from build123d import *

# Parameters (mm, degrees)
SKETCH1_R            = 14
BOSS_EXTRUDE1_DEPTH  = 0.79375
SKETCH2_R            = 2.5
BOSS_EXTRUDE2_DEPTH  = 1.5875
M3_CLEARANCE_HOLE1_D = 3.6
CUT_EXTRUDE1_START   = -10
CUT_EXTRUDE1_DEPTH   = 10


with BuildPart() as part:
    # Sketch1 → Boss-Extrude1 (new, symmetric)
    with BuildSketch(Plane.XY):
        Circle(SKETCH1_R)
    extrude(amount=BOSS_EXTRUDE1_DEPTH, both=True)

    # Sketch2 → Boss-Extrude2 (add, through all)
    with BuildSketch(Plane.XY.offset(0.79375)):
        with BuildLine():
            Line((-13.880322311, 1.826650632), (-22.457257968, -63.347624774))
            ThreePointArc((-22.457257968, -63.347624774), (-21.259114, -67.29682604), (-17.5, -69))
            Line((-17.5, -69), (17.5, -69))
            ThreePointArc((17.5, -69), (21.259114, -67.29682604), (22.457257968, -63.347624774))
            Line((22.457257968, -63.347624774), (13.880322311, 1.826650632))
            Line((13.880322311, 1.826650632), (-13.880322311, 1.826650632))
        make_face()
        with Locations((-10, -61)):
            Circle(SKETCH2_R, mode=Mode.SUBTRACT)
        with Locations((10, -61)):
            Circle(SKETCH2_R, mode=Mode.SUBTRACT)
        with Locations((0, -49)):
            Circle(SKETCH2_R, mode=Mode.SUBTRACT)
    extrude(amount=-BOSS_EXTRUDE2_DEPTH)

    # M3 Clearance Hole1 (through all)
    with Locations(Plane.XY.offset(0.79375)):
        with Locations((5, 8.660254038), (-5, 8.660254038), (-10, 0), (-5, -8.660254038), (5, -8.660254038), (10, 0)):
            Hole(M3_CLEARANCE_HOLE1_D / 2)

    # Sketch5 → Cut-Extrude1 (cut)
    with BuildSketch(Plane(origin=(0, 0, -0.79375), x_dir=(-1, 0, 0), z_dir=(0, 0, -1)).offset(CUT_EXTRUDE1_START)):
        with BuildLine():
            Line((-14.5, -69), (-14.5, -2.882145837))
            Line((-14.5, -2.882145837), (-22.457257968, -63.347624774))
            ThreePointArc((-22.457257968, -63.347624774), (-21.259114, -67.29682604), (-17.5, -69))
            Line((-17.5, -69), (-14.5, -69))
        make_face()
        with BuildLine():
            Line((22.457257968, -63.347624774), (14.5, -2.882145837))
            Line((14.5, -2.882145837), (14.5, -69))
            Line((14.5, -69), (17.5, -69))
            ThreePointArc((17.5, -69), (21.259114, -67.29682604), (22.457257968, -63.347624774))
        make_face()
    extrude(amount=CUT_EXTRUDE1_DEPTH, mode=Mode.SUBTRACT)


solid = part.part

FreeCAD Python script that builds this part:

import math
import FreeCAD as App
import Part
import Sketcher
from FreeCAD import Vector

doc = App.newDocument("Part")
body = doc.addObject("PartDesign::Body", "Body")

# Sketch on XY plane
sketch1 = doc.addObject("Sketcher::SketchObject", "Sketch")
body.addObject(sketch1)
sketch1.AttachmentSupport = (doc.XY_Plane, [""])
sketch1.MapMode = "FlatFace"
sketch1.addGeometry(Part.Circle(Vector(0, 0, 0), Vector(0, 0, 1), 14), False)
sketch1.addConstraint(Sketcher.Constraint("Coincident", 0, 3, -1, 1))
sketch1.addConstraint(Sketcher.Constraint("Diameter", 0, 28.0))
pad1 = doc.addObject("PartDesign::Pad", "Pad")
body.addObject(pad1)
pad1.Profile = sketch1
pad1.Length = 1.5875
pad1.Midplane = True

# Sketch on XY plane
sketch2 = doc.addObject("Sketcher::SketchObject", "Sketch001")
body.addObject(sketch2)
sketch2.AttachmentSupport = (doc.XY_Plane, [""])
sketch2.MapMode = "FlatFace"
sketch2.AttachmentOffset = App.Placement(Vector(0, 0, 0.79375), App.Rotation())
sketch2.addGeometry(Part.LineSegment(Vector(-13.9, 1.8, 0), Vector(-22.5, -63.3, 0)), False)
sketch2.addGeometry(Part.ArcOfCircle(Part.Circle(Vector(-17.5, -64, 0), Vector(0, 0, 1), 5), math.radians(173), math.radians(270)), False)
sketch2.addGeometry(Part.LineSegment(Vector(-17.5, -69, 0), Vector(17.5, -69, 0)), False)
sketch2.addGeometry(Part.ArcOfCircle(Part.Circle(Vector(17.5, -64, 0), Vector(0, 0, 1), 5), math.radians(-90), math.radians(7)), False)
sketch2.addGeometry(Part.LineSegment(Vector(22.5, -63.3, 0), Vector(13.9, 1.8, 0)), False)
sketch2.addGeometry(Part.LineSegment(Vector(13.9, 1.8, 0), Vector(-13.9, 1.8, 0)), False)
sketch2.addGeometry(Part.Circle(Vector(-10, -61, 0), Vector(0, 0, 1), 2.5), False)
sketch2.addGeometry(Part.Circle(Vector(10, -61, 0), Vector(0, 0, 1), 2.5), False)
sketch2.addGeometry(Part.Circle(Vector(0, -49, 0), Vector(0, 0, 1), 2.5), False)
sketch2.addConstraint(Sketcher.Constraint("Tangent", 0, 2, 1, 1))
sketch2.addConstraint(Sketcher.Constraint("Tangent", 1, 2, 2, 1))
sketch2.addConstraint(Sketcher.Constraint("Tangent", 2, 2, 3, 1))
sketch2.addConstraint(Sketcher.Constraint("Tangent", 3, 2, 4, 1))
sketch2.addConstraint(Sketcher.Constraint("Coincident", 4, 2, 5, 1))
sketch2.addConstraint(Sketcher.Constraint("Coincident", 5, 2, 0, 1))
sketch2.addConstraint(Sketcher.Constraint("Horizontal", 2))
sketch2.addConstraint(Sketcher.Constraint("Horizontal", 5))
sketch2.addConstraint(Sketcher.Constraint("Equal", 1, 3))
sketch2.addConstraint(Sketcher.Constraint("Equal", 6, 7))
sketch2.addConstraint(Sketcher.Constraint("Equal", 7, 8))
sketch2.addConstraint(Sketcher.Constraint("Symmetric", 6, 3, 7, 3, -2))
sketch2.addConstraint(Sketcher.Constraint("Symmetric", 0, 2, 3, 2, -2))
sketch2.addConstraint(Sketcher.Constraint("PointOnObject", 8, 3, -2))
sketch2.addConstraint(Sketcher.Constraint("Diameter", 6, 5.0))
sketch2.addConstraint(Sketcher.Constraint("Radius", 1, 5.0))
sketch2.addConstraint(Sketcher.Constraint("DistanceX", 2, 1, 2, 2, 35.0))
sketch2.addConstraint(Sketcher.Constraint("DistanceY", 1, 3, -1, 1, 64.0))
sketch2.addConstraint(Sketcher.Constraint("DistanceX", 6, 3, -1, 1, 10.0))
sketch2.addConstraint(Sketcher.Constraint("DistanceY", 6, 3, -1, 1, 61.0))
sketch2.addConstraint(Sketcher.Constraint("DistanceY", 8, 3, -1, 1, 49.0))
sketch2.addConstraint(Sketcher.Constraint("DistanceX", 5, 2, 5, 1, 27.760645))
sketch2.addConstraint(Sketcher.Constraint("DistanceY", -1, 1, 4, 2, 1.826651))
pad2 = doc.addObject("PartDesign::Pad", "Pad001")
body.addObject(pad2)
pad2.Profile = sketch2
pad2.Length = 1.5875
pad2.Reversed = True

# Sketch on XY plane
sketch3 = doc.addObject("Sketcher::SketchObject", "Sketch002")
body.addObject(sketch3)
sketch3.AttachmentSupport = (doc.XY_Plane, [""])
sketch3.MapMode = "FlatFace"
sketch3.AttachmentOffset = App.Placement(Vector(0, 0, 0.79375), App.Rotation())
sketch3.addGeometry(Part.Circle(Vector(5, 8.7, 0), Vector(0, 0, 1), 1.8), False)
sketch3.addGeometry(Part.Circle(Vector(-5, 8.7, 0), Vector(0, 0, 1), 1.8), False)
sketch3.addGeometry(Part.Circle(Vector(-10, 0, 0), Vector(0, 0, 1), 1.8), False)
sketch3.addGeometry(Part.Circle(Vector(-5, -8.7, 0), Vector(0, 0, 1), 1.8), False)
sketch3.addGeometry(Part.Circle(Vector(5, -8.7, 0), Vector(0, 0, 1), 1.8), False)
sketch3.addGeometry(Part.Circle(Vector(10, 0, 0), Vector(0, 0, 1), 1.8), False)
sketch3.addConstraint(Sketcher.Constraint("Equal", 0, 1))
sketch3.addConstraint(Sketcher.Constraint("Equal", 1, 2))
sketch3.addConstraint(Sketcher.Constraint("Equal", 2, 3))
sketch3.addConstraint(Sketcher.Constraint("Equal", 3, 4))
sketch3.addConstraint(Sketcher.Constraint("Equal", 4, 5))
sketch3.addConstraint(Sketcher.Constraint("Symmetric", 0, 3, 3, 3, -1, 1))
sketch3.addConstraint(Sketcher.Constraint("Symmetric", 1, 3, 4, 3, -1, 1))
sketch3.addConstraint(Sketcher.Constraint("Symmetric", 2, 3, 5, 3, -1, 1))
sketch3.addConstraint(Sketcher.Constraint("Symmetric", 0, 3, 1, 3, -2))
sketch3.addConstraint(Sketcher.Constraint("PointOnObject", 2, 3, -1))
sketch3.addConstraint(Sketcher.Constraint("Diameter", 0, 3.6))
sketch3.addConstraint(Sketcher.Constraint("DistanceX", -1, 1, 0, 3, 5.0))
sketch3.addConstraint(Sketcher.Constraint("DistanceX", 2, 3, -1, 1, 10.0))
sketch3.addConstraint(Sketcher.Constraint("DistanceY", 3, 3, 1, 3, 17.320508))
doc.recompute()
hole = doc.addObject("PartDesign::Hole", "Hole")
body.addObject(hole)
hole.Profile = sketch3
hole.ThreadType = "None"
hole.Diameter = 3.6
hole.DepthType = "ThroughAll"

# Sketch on XY plane
sketch4 = doc.addObject("Sketcher::SketchObject", "Sketch003")
body.addObject(sketch4)
sketch4.AttachmentSupport = (doc.XY_Plane, [""])
sketch4.MapMode = "FlatFace"
sketch4.AttachmentOffset = App.Placement(Vector(0, 0, 9.20625), App.Rotation())
sketch4.addGeometry(Part.LineSegment(Vector(14.5, -69, 0), Vector(14.5, -2.9, 0)), False)
sketch4.addGeometry(Part.LineSegment(Vector(14.5, -2.9, 0), Vector(22.5, -63.3, 0)), False)
sketch4.addGeometry(Part.ArcOfCircle(Part.Circle(Vector(17.5, -64, 0), Vector(0, 0, 1), 5), math.radians(-90), math.radians(7)), False)
sketch4.addGeometry(Part.LineSegment(Vector(17.5, -69, 0), Vector(14.5, -69, 0)), False)
sketch4.addGeometry(Part.LineSegment(Vector(-22.5, -63.3, 0), Vector(-14.5, -2.9, 0)), False)
sketch4.addGeometry(Part.LineSegment(Vector(-14.5, -2.9, 0), Vector(-14.5, -69, 0)), False)
sketch4.addGeometry(Part.LineSegment(Vector(-14.5, -69, 0), Vector(-17.5, -69, 0)), False)
sketch4.addGeometry(Part.ArcOfCircle(Part.Circle(Vector(-17.5, -64, 0), Vector(0, 0, 1), 5), math.radians(173), math.radians(270)), False)
sketch4.addConstraint(Sketcher.Constraint("Coincident", 0, 2, 1, 1))
sketch4.addConstraint(Sketcher.Constraint("Tangent", 1, 2, 2, 2))
sketch4.addConstraint(Sketcher.Constraint("Tangent", 2, 1, 3, 1))
sketch4.addConstraint(Sketcher.Constraint("Coincident", 3, 2, 0, 1))
sketch4.addConstraint(Sketcher.Constraint("Coincident", 4, 2, 5, 1))
sketch4.addConstraint(Sketcher.Constraint("Coincident", 5, 2, 6, 1))
sketch4.addConstraint(Sketcher.Constraint("Tangent", 6, 2, 7, 2))
sketch4.addConstraint(Sketcher.Constraint("Tangent", 7, 1, 4, 1))
sketch4.addConstraint(Sketcher.Constraint("Vertical", 0))
sketch4.addConstraint(Sketcher.Constraint("Horizontal", 3))
sketch4.addConstraint(Sketcher.Constraint("Vertical", 5))
sketch4.addConstraint(Sketcher.Constraint("Horizontal", 6))
sketch4.addConstraint(Sketcher.Constraint("Equal", 2, 7))
sketch4.addConstraint(Sketcher.Constraint("Symmetric", 2, 3, 7, 3, -2))
sketch4.addConstraint(Sketcher.Constraint("Symmetric", 0, 2, 4, 2, -2))
sketch4.addConstraint(Sketcher.Constraint("Radius", 2, 5.0))
sketch4.addConstraint(Sketcher.Constraint("DistanceX", 3, 2, 3, 1, 3.0))
sketch4.addConstraint(Sketcher.Constraint("DistanceY", 2, 3, -1, 1, 64.0))
sketch4.addConstraint(Sketcher.Constraint("DistanceX", 7, 3, 2, 3, 35.0))
sketch4.addConstraint(Sketcher.Constraint("Distance", 1, 60.986819))
pocket1 = doc.addObject("PartDesign::Pocket", "Pocket")
body.addObject(pocket1)
pocket1.Profile = sketch4
pocket1.Length = 10

doc.recompute()
